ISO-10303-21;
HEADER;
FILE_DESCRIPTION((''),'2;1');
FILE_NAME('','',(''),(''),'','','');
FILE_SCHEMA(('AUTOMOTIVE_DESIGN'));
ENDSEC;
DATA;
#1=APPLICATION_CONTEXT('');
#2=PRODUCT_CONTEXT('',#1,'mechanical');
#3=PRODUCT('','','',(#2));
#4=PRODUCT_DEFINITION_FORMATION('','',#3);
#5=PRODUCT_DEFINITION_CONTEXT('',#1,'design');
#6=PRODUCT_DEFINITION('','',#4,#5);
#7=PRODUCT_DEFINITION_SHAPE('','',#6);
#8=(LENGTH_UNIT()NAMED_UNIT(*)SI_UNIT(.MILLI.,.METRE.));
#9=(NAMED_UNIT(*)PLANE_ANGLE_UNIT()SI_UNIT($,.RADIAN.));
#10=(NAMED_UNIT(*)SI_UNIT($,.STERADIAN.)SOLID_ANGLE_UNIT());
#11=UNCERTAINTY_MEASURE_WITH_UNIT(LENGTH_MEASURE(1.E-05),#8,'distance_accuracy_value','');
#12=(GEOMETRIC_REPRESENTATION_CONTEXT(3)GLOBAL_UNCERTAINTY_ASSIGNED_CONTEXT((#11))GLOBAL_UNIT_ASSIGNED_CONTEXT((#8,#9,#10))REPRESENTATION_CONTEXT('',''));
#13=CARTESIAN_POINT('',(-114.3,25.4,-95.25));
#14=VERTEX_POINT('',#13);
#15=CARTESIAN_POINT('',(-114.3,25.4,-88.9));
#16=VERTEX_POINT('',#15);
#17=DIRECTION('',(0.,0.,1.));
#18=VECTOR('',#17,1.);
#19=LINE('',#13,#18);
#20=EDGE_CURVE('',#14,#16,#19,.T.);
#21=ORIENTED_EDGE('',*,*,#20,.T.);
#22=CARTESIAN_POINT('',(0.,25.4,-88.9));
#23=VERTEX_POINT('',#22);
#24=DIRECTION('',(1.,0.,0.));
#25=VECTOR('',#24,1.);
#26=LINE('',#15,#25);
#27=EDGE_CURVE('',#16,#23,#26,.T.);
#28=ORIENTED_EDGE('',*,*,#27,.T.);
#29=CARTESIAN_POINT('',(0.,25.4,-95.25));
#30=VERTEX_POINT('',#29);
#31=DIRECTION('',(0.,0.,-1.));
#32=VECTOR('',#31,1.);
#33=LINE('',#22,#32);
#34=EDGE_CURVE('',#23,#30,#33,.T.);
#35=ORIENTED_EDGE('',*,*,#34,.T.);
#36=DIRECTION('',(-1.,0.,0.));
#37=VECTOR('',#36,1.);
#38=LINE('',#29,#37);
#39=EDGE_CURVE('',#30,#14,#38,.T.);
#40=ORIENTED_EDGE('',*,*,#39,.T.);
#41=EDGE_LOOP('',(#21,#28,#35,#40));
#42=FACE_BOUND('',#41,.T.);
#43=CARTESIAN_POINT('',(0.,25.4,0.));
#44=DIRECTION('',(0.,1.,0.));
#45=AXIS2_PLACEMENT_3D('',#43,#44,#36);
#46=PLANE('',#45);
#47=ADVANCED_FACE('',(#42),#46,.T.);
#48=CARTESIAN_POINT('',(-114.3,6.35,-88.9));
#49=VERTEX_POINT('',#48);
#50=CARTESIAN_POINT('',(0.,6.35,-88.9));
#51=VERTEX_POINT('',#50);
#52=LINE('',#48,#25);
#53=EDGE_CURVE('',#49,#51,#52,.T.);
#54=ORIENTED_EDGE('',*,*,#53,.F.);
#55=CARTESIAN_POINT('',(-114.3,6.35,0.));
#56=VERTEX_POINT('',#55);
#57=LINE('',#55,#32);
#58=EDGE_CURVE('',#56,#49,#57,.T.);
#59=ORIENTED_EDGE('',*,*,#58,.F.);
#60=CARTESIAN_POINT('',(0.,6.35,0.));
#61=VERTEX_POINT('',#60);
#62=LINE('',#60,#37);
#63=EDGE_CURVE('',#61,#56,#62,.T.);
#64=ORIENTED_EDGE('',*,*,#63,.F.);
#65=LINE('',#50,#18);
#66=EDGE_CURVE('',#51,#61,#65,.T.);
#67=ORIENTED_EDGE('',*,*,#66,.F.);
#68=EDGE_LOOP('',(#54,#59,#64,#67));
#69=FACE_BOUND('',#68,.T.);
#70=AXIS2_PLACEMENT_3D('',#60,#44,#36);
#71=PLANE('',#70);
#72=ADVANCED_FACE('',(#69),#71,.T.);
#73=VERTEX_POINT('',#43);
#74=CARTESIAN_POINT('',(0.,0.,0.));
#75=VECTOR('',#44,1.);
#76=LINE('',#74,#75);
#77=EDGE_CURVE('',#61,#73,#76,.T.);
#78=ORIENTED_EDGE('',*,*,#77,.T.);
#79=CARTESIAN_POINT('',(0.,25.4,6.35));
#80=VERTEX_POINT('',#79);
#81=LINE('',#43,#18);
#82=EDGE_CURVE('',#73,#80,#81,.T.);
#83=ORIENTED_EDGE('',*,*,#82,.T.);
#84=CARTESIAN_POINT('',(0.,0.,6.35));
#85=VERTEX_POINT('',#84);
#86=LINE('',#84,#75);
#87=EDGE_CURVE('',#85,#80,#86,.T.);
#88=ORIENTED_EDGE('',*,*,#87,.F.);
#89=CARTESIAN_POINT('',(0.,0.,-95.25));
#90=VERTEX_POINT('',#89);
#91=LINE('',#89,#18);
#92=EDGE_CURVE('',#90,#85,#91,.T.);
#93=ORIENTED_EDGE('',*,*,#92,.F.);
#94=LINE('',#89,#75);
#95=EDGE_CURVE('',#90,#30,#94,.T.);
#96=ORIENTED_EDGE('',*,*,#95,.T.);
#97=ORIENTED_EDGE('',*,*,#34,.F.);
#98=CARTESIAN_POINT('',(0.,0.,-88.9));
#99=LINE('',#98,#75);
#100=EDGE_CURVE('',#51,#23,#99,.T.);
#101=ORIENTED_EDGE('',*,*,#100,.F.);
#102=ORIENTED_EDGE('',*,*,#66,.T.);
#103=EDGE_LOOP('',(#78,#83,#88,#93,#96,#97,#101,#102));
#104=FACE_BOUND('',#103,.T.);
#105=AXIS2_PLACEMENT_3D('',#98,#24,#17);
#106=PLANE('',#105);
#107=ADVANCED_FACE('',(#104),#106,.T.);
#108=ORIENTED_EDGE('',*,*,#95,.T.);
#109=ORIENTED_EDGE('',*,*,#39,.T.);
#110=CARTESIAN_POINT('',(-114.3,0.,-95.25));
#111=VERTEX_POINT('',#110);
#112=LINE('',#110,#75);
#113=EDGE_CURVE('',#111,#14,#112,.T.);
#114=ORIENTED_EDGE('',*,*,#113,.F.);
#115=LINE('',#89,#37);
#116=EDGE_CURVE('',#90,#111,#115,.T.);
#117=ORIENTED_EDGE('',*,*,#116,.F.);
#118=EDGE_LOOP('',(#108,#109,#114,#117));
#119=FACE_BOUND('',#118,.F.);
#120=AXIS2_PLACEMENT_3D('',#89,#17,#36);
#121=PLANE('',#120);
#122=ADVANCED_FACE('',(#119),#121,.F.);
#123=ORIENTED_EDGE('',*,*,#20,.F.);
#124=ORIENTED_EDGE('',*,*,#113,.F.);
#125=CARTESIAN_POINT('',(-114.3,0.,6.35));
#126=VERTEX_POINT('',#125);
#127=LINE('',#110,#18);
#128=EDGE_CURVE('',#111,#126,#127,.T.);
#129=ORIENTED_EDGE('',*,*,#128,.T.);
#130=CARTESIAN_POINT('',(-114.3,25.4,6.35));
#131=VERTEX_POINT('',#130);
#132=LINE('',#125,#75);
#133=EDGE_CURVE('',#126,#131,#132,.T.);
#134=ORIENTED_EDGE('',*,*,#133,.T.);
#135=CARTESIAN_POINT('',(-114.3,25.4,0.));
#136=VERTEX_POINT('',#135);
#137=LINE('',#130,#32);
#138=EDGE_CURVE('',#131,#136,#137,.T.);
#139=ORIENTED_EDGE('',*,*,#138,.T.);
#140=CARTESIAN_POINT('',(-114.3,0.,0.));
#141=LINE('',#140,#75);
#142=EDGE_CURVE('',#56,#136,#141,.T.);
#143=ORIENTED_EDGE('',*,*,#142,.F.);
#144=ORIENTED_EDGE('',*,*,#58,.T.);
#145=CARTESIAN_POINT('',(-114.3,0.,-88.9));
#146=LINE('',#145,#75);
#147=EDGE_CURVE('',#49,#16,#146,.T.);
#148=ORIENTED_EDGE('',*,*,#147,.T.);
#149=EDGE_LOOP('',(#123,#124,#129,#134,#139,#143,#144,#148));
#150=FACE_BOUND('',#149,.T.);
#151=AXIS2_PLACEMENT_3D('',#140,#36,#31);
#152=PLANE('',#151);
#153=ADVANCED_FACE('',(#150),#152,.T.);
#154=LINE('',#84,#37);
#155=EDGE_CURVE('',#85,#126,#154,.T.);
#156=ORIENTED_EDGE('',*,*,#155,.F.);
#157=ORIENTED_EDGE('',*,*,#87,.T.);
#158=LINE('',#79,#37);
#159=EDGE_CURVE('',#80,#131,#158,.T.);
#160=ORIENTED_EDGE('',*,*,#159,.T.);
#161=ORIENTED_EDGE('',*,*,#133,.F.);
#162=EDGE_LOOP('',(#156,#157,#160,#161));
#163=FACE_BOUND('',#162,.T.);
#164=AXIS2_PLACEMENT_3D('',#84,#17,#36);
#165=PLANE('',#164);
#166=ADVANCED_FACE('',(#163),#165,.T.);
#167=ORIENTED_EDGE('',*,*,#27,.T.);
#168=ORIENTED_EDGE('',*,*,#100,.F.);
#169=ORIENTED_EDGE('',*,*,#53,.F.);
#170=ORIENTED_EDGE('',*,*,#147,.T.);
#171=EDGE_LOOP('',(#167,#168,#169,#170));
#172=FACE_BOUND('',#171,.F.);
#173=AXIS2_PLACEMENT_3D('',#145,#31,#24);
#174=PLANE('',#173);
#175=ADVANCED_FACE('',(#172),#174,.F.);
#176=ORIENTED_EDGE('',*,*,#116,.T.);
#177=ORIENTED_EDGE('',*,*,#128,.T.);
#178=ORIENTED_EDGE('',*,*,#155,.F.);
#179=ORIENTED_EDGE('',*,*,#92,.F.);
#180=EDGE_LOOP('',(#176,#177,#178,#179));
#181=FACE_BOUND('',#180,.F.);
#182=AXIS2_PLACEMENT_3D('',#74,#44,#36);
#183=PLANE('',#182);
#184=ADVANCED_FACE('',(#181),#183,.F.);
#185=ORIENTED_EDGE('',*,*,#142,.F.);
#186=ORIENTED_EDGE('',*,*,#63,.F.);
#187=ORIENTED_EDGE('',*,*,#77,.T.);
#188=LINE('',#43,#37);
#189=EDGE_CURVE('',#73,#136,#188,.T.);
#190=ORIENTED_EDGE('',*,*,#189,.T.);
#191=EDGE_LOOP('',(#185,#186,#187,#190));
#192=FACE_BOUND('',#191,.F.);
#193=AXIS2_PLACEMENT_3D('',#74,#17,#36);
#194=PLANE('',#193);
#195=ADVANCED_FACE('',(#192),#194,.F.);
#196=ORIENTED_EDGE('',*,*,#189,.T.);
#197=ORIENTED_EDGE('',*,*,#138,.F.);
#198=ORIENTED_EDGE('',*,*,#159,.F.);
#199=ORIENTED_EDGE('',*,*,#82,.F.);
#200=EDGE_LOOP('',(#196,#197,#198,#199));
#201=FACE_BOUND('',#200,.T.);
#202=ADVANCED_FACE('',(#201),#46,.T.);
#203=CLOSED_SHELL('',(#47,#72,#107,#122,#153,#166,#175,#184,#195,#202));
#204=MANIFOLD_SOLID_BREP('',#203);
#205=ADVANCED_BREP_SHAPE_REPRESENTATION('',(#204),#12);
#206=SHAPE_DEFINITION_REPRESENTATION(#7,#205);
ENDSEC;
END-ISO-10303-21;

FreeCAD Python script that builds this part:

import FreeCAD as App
import Part
import Sketcher
from FreeCAD import Vector
Q = App.Units.Quantity

doc = App.newDocument("Part")
params = doc.addObject("Spreadsheet::Sheet", "Params")
for row, (alias, value) in enumerate([
    ("sketch1_width", "4.5 in"),
    ("sketch1_height", "3.5 in"),
    ("pad1_length", "0.25 in"),
    ("sketch2_width", "4.5 in"),
    ("sketch2_height", "0.25 in"),
    ("pad2_length", "1 in"),
], start=1):
    params.set(f"A{row}", alias)
    params.set(f"B{row}", "=" + value)
    params.setAlias(f"B{row}", alias)

body = doc.addObject("PartDesign::Body", "Body")

# Sketch on XZ plane
sketch1 = doc.addObject("Sketcher::SketchObject", "Sketch")
body.addObject(sketch1)
sketch1.AttachmentSupport = (doc.XZ_Plane, [""])
sketch1.MapMode = "FlatFace"
sketch1.addGeometry([
    Part.LineSegment(Vector(-114, 0, 0), Vector(0, 0, 0)),
    Part.LineSegment(Vector(0, 0, 0), Vector(0, -89, 0)),
    Part.LineSegment(Vector(0, -89, 0), Vector(-114, -89, 0)),
    Part.LineSegment(Vector(-114, -89, 0), Vector(-114, 0, 0)),
], False)
sketch1.addConstraint([
    Sketcher.Constraint("Coincident", 0, 2, 1, 1),
    Sketcher.Constraint("Coincident", 1, 2, 2, 1),
    Sketcher.Constraint("Coincident", 2, 2, 3, 1),
    Sketcher.Constraint("Coincident", 3, 2, 0, 1),
    Sketcher.Constraint("Horizontal", 0),
    Sketcher.Constraint("Vertical", 1),
    Sketcher.Constraint("Horizontal", 2),
    Sketcher.Constraint("Vertical", 3),
    Sketcher.Constraint("Coincident", 0, 2, -1, 1),
    Sketcher.Constraint("DistanceX", 0, 1, 0, 2, Q("4.5 in")),
    Sketcher.Constraint("DistanceY", 1, 2, 1, 1, Q("3.5 in")),
])
sketch1.setExpression("Constraints[9]", "Params.sketch1_width")
sketch1.setExpression("Constraints[10]", "Params.sketch1_height")
pad1 = doc.addObject("PartDesign::Pad", "Pad")
body.addObject(pad1)
pad1.Profile = sketch1
pad1.setExpression("Length", "Params.pad1_length")
pad1.Reversed = True

# Sketch on XZ plane
sketch2 = doc.addObject("Sketcher::SketchObject", "Sketch001")
body.addObject(sketch2)
sketch2.AttachmentSupport = (doc.XZ_Plane, [""])
sketch2.MapMode = "FlatFace"
sketch2.addGeometry([
    Part.LineSegment(Vector(0, 6, 0), Vector(0, 0, 0)),  # 0
    Part.LineSegment(Vector(0, 0, 0), Vector(-114, 0, 0)),  # 1
    Part.LineSegment(Vector(-114, 0, 0), Vector(-114, 6, 0)),  # 2
    Part.LineSegment(Vector(-114, 6, 0), Vector(0, 6, 0)),  # 3
    Part.LineSegment(Vector(-114, -89, 0), Vector(0, -89, 0)),  # 4
    Part.LineSegment(Vector(0, -89, 0), Vector(0, -95, 0)),  # 5
    Part.LineSegment(Vector(0, -95, 0), Vector(-114, -95, 0)),  # 6
    Part.LineSegment(Vector(-114, -95, 0), Vector(-114, -89, 0)),  # 7
], False)
sketch2.addConstraint([
    Sketcher.Constraint("Coincident", 0, 2, 1, 1),
    Sketcher.Constraint("Coincident", 1, 2, 2, 1),
    Sketcher.Constraint("Coincident", 2, 2, 3, 1),
    Sketcher.Constraint("Coincident", 3, 2, 0, 1),
    Sketcher.Constraint("Coincident", 4, 2, 5, 1),
    Sketcher.Constraint("Coincident", 5, 2, 6, 1),
    Sketcher.Constraint("Coincident", 6, 2, 7, 1),
    Sketcher.Constraint("Coincident", 7, 2, 4, 1),
    Sketcher.Constraint("Vertical", 0),
    Sketcher.Constraint("Horizontal", 1),
    Sketcher.Constraint("Vertical", 2),
    Sketcher.Constraint("Horizontal", 3),
    Sketcher.Constraint("Horizontal", 4),
    Sketcher.Constraint("Vertical", 5),
    Sketcher.Constraint("Horizontal", 6),
    Sketcher.Constraint("Vertical", 7),
    Sketcher.Constraint("Coincident", 0, 2, -1, 1),
    Sketcher.Constraint("PointOnObject", 4, 2, -2),
    Sketcher.Constraint("Vertical", 2, 2, 6, 2),
    Sketcher.Constraint("Equal", 2, 5),
    Sketcher.Constraint("DistanceX", 1, 2, 1, 1, Q("4.5 in")),
    Sketcher.Constraint("DistanceY", 0, 2, 0, 1, Q("0.25 in")),
    Sketcher.Constraint("DistanceY", 4, 2, -1, 1, Q("3.5 in")),
])
sketch2.setExpression("Constraints[20]", "Params.sketch2_width")
sketch2.setExpression("Constraints[21]", "Params.sketch2_height")
pad2 = doc.addObject("PartDesign::Pad", "Pad001")
body.addObject(pad2)
pad2.Profile = sketch2
pad2.setExpression("Length", "Params.pad2_length")
pad2.Reversed = True

doc.recompute()
